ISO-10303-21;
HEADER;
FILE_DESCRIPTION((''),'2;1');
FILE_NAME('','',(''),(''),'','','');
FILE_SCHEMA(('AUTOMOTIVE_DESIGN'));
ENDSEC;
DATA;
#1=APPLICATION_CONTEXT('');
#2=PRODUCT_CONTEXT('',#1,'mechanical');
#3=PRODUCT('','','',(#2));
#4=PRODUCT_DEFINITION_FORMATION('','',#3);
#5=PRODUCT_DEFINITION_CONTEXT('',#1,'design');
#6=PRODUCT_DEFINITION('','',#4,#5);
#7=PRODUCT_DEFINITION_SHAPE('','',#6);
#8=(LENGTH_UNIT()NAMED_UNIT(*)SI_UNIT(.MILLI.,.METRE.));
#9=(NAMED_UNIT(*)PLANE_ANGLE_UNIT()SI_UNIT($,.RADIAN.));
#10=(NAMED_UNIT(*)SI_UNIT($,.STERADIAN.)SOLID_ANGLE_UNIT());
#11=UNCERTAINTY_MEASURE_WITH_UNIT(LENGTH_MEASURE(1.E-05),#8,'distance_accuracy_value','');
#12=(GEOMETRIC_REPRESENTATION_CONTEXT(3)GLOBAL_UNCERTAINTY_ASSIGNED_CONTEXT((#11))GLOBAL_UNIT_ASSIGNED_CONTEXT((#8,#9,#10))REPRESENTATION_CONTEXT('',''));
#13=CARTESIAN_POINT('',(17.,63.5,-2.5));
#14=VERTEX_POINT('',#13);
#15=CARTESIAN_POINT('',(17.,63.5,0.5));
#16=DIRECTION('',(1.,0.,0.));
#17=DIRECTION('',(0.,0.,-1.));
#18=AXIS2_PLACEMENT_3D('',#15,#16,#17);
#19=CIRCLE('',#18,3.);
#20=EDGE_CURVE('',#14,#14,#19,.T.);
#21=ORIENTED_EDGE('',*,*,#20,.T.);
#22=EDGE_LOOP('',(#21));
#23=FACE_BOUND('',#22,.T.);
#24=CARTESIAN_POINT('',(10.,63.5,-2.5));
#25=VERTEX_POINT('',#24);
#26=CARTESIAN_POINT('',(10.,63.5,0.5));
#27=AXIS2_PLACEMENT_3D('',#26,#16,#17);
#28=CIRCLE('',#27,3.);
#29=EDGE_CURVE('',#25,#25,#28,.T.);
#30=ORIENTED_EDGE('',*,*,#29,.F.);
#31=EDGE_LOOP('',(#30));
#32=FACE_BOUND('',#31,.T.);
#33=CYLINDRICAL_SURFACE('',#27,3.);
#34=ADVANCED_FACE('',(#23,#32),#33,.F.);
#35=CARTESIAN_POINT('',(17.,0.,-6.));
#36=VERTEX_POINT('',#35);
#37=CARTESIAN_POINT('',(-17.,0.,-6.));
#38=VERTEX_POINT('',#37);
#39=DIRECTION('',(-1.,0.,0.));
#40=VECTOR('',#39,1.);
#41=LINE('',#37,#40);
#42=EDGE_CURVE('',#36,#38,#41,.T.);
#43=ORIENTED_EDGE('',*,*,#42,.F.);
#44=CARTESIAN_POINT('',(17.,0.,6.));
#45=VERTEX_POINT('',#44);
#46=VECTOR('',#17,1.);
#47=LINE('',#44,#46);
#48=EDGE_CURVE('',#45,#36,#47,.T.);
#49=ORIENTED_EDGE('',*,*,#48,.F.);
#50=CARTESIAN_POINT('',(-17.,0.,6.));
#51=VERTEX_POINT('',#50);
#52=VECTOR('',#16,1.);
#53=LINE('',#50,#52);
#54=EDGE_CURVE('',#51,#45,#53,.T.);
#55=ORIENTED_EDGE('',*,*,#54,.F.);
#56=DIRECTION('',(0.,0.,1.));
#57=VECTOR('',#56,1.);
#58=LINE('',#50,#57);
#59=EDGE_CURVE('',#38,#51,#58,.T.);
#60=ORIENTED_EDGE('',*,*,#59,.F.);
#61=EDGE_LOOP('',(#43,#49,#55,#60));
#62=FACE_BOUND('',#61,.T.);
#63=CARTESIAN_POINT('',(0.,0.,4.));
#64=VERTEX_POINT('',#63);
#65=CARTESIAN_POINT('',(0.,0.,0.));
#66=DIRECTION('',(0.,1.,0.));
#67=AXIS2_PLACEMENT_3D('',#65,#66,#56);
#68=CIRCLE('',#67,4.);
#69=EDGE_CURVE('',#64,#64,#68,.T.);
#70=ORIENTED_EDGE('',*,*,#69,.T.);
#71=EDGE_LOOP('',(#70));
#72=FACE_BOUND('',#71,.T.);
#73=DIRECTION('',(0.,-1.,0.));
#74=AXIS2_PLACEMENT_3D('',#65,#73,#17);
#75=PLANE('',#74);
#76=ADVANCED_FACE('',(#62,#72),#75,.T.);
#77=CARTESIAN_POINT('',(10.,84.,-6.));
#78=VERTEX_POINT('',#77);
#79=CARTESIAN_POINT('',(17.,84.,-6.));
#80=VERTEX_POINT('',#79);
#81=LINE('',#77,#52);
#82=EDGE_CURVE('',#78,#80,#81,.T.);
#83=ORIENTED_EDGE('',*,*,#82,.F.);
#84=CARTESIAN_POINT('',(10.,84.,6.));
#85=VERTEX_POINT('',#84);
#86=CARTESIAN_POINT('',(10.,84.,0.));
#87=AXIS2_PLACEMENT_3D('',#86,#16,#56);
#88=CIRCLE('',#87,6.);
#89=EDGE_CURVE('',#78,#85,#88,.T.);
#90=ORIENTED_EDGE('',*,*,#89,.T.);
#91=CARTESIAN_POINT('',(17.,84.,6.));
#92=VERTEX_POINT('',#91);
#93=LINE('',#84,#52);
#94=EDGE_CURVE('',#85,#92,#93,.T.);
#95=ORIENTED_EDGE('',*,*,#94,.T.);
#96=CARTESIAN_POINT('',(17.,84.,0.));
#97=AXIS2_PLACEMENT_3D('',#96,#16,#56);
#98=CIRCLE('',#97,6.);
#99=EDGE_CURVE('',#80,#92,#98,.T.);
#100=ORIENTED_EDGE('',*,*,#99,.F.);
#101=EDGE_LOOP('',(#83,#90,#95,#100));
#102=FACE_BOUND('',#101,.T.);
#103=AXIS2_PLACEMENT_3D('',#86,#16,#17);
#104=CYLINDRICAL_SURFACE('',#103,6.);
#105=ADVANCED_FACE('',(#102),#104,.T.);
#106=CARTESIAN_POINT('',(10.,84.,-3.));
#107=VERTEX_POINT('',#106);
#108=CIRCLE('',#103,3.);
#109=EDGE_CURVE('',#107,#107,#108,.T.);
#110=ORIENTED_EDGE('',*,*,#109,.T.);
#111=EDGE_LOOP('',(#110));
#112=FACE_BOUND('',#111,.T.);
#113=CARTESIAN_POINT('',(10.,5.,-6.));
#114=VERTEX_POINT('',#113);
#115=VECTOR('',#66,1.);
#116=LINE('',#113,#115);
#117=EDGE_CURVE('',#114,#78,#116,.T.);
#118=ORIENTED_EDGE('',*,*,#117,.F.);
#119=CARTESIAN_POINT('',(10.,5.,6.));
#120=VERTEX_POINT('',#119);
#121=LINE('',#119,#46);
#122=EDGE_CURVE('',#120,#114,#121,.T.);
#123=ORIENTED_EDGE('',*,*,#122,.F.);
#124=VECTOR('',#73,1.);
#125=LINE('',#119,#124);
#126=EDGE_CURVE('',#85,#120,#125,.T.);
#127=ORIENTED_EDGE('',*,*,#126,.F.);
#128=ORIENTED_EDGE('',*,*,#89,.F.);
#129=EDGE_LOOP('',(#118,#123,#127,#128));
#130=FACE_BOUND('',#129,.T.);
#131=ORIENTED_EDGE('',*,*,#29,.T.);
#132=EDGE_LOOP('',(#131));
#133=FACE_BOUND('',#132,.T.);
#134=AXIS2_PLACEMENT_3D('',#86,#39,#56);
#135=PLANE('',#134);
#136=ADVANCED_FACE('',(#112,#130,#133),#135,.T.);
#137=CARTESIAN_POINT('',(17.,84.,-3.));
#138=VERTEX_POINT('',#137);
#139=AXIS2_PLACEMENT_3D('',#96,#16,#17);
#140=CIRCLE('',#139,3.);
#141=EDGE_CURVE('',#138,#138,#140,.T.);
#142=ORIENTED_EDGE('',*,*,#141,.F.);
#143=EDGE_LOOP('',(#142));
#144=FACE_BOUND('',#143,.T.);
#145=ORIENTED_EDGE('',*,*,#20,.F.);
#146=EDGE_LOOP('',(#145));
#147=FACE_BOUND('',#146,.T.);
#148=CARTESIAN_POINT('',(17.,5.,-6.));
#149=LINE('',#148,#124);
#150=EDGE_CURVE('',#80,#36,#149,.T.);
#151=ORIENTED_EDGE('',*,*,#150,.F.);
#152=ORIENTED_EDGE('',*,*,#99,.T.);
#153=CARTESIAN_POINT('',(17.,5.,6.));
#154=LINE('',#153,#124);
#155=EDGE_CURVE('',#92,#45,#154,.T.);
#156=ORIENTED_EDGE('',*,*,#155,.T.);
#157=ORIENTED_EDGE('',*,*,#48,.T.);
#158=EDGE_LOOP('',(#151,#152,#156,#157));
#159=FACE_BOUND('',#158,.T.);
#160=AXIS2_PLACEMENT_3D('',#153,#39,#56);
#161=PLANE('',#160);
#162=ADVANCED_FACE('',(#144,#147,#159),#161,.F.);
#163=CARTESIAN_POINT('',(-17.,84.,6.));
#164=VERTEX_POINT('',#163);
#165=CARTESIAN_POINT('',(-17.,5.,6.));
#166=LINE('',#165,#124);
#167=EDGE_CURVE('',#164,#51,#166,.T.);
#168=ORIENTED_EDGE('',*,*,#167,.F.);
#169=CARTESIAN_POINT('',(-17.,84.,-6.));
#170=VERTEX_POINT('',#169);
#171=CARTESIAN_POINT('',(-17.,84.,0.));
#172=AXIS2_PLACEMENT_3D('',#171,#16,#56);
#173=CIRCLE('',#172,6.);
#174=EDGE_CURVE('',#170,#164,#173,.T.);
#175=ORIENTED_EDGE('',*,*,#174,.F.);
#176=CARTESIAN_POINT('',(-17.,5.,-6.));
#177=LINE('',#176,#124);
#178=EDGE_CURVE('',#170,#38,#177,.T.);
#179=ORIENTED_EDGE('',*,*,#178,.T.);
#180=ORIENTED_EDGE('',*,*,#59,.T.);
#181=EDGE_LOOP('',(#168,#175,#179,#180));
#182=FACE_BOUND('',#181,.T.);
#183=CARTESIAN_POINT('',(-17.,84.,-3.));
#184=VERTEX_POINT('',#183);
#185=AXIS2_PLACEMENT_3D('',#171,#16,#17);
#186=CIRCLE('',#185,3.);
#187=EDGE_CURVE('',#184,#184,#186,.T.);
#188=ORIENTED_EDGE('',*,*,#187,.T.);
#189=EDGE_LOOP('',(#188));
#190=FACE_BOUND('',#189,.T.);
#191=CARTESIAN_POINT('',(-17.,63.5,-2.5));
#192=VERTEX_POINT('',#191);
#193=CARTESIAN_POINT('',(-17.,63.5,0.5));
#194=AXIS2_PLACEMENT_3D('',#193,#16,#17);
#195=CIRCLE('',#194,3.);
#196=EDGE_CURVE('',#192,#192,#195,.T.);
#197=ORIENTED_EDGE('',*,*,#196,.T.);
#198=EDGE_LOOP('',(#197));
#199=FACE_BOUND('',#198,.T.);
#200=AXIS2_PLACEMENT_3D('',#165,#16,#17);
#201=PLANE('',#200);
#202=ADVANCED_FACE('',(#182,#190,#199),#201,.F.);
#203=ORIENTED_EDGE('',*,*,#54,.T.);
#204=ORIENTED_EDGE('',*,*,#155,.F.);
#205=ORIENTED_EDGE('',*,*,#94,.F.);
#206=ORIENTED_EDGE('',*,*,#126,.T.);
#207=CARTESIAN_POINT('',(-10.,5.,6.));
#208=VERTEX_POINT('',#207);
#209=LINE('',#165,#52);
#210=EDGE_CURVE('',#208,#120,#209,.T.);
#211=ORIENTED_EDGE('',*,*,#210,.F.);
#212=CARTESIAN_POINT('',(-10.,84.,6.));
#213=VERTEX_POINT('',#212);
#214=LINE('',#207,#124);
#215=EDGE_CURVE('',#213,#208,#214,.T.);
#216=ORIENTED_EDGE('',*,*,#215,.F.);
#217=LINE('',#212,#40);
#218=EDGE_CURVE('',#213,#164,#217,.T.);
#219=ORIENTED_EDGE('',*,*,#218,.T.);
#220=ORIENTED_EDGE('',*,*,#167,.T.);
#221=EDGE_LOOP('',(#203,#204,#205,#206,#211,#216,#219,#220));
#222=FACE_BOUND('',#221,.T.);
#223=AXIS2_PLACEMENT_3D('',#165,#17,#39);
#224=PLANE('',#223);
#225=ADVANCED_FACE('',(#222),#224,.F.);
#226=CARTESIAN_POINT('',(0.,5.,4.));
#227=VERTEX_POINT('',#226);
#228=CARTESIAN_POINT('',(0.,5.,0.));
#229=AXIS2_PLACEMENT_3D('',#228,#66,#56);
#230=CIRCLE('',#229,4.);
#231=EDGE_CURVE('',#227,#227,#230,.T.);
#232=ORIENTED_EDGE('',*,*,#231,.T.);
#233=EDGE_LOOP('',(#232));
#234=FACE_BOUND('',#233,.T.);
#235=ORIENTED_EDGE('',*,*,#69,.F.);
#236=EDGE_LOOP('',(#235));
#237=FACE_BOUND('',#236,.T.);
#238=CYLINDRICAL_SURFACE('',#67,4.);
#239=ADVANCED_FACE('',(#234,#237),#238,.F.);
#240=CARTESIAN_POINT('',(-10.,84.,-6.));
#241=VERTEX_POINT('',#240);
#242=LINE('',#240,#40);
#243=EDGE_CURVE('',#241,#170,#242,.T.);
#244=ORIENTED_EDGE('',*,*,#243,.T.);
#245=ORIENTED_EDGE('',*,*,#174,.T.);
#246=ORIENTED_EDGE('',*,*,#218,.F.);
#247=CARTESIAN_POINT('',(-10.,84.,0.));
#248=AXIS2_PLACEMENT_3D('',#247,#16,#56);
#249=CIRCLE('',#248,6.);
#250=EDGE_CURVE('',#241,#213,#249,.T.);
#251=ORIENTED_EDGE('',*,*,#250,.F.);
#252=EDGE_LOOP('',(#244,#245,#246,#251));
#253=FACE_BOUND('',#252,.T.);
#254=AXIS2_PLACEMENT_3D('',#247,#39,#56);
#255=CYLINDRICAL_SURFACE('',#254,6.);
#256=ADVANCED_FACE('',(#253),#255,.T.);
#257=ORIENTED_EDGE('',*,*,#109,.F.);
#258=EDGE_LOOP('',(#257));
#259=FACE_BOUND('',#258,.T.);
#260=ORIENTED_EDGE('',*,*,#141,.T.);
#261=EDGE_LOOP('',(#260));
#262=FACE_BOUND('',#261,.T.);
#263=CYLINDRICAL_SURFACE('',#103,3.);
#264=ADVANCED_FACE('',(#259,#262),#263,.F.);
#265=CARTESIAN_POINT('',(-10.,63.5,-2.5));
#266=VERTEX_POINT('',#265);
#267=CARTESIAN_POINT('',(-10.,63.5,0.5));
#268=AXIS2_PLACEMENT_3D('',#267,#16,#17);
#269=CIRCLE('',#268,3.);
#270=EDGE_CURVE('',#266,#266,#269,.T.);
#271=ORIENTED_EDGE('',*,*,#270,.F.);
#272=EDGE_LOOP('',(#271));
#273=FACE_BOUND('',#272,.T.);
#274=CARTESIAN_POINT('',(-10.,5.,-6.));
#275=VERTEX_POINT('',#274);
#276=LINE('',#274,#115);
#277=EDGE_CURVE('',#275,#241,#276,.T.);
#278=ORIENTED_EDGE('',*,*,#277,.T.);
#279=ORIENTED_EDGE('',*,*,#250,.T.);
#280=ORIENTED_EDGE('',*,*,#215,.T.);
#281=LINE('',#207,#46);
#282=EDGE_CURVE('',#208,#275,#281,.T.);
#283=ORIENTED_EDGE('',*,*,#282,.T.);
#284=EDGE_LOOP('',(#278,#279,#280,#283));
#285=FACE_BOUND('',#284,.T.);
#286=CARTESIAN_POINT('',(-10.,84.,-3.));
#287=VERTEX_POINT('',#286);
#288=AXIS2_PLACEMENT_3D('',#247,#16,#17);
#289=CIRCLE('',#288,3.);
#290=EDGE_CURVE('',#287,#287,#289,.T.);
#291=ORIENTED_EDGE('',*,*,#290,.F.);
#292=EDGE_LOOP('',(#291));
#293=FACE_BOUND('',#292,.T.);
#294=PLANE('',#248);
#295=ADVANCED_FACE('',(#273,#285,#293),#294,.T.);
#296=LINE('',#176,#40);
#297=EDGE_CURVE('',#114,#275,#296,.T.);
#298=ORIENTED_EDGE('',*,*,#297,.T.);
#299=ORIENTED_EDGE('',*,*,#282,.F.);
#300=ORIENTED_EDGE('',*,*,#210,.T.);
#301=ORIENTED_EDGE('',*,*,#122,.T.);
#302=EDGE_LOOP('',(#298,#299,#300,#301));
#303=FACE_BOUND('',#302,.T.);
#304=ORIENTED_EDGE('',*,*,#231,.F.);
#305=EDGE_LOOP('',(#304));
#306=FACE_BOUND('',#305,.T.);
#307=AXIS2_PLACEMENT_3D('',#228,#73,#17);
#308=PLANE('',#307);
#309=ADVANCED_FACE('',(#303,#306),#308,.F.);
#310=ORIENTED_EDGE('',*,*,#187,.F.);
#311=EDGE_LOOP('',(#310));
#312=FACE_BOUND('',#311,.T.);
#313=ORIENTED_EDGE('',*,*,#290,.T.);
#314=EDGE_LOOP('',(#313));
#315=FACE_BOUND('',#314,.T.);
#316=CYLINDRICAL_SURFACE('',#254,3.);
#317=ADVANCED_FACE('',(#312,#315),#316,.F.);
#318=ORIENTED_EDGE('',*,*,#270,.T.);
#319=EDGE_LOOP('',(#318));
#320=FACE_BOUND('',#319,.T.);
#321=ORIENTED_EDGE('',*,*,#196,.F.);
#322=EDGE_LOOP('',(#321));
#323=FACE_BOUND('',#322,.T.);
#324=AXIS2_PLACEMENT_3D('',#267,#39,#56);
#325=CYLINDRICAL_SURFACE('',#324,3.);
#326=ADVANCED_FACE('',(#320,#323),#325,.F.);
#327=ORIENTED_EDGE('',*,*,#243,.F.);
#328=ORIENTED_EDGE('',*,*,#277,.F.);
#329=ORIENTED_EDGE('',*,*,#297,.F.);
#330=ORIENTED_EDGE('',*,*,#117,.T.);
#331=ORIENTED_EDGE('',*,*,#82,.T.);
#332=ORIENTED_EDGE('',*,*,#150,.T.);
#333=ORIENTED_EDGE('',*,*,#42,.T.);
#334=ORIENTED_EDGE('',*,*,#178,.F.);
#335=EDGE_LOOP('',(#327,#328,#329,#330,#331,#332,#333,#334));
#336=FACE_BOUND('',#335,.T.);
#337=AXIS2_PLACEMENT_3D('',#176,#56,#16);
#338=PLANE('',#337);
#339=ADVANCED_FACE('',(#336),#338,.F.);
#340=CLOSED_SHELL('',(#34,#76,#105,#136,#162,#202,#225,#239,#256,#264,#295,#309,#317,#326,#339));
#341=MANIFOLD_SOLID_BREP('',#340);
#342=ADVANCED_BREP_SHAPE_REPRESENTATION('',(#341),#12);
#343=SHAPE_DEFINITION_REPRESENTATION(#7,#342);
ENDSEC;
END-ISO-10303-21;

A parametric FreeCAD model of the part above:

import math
import FreeCAD as App
import Part
import Sketcher

V = App.Vector
Q = App.Units.Quantity


def add_polygon(sketch, points):
    """Adds a closed chain of lines whose ends are joined by coincident constraints."""
    first, n = sketch.GeometryCount, len(points)
    for a, b in zip(points, points[1:] + points[:1]):
        sketch.addGeometry(Part.LineSegment(App.Vector(*a, 0), App.Vector(*b, 0)), False)
    for i in range(n):
        sketch.addConstraint(Sketcher.Constraint("Coincident", first + i, 2, first + (i + 1) % n, 1))

doc = App.newDocument("Part")
body = doc.addObject("PartDesign::Body", "Body")

sketch1 = body.newObject("Sketcher::SketchObject", "Sketch")
sketch1.AttachmentSupport = (doc.getObject("XZ_Plane"), [""])
sketch1.MapMode = "FlatFace"
add_polygon(sketch1, [(-17, -6), (-17, 6), (17, 6), (17, -6)])
sketch1.addConstraint([
    Sketcher.Constraint("Vertical", 0),
    Sketcher.Constraint("Horizontal", 1),
    Sketcher.Constraint("Vertical", 2),
    Sketcher.Constraint("Horizontal", 3),
    Sketcher.Constraint("Symmetric", 0, 2, 2, 2, -1, 1),
    Sketcher.Constraint("DistanceX", 1, 1, 1, 2, Q("34 mm")),
    Sketcher.Constraint("DistanceY", 0, 1, 0, 2, Q("12 mm")),
])
pad1 = body.newObject("PartDesign::Pad", "Pad")
pad1.Profile = sketch1
pad1.Length = 5
pad1.Reversed = True

sketch2 = body.newObject("Sketcher::SketchObject", "Sketch001")
sketch2.AttachmentSupport = (doc.getObject("YZ_Plane"), [""])
sketch2.MapMode = "FlatFace"
sketch2.AttachmentOffset = App.Placement(V(0, 0, 17), App.Rotation())
sketch2.addGeometry([
    Part.LineSegment(V(5, 6, 0), V(5, -6, 0)),
    Part.LineSegment(V(5, -6, 0), V(84, -6, 0)),
    Part.ArcOfCircle(Part.Circle(V(84, 0, 0), V(0, 0, 1), 6), math.radians(-90), math.radians(90)),
    Part.LineSegment(V(84, 6, 0), V(5, 6, 0)),
    Part.Circle(V(63.5, 0.5, 0), V(0, 0, 1), 3),
    Part.Circle(V(84, 0, 0), V(0, 0, 1), 3),
], False)
sketch2.addConstraint([
    Sketcher.Constraint("Coincident", 0, 2, 1, 1),
    Sketcher.Constraint("Tangent", 1, 2, 2, 1),
    Sketcher.Constraint("Tangent", 2, 2, 3, 1),
    Sketcher.Constraint("Coincident", 3, 2, 0, 1),
    Sketcher.Constraint("Vertical", 0),
    Sketcher.Constraint("Horizontal", 1),
    Sketcher.Constraint("Horizontal", 3),
    Sketcher.Constraint("Coincident", 5, 3, 2, 3),
    Sketcher.Constraint("Equal", 4, 5),
    Sketcher.Constraint("PointOnObject", 2, 3, -1),
    Sketcher.Constraint("Diameter", 4, Q("6 mm")),
    Sketcher.Constraint("Radius", 2, Q("6 mm")),
    Sketcher.Constraint("DistanceX", 1, 1, 1, 2, Q("79 mm")),
    Sketcher.Constraint("DistanceX", -1, 1, 2, 3, Q("84 mm")),
    Sketcher.Constraint("DistanceX", -1, 1, 4, 3, Q("63.5 mm")),
    Sketcher.Constraint("DistanceY", -1, 1, 4, 3, Q("0.5 mm")),
])
pad2 = body.newObject("PartDesign::Pad", "Pad001")
pad2.Profile = sketch2
pad2.Length = 7
pad2.Reversed = True

sketch3 = body.newObject("Sketcher::SketchObject", "Sketch002")
sketch3.AttachmentSupport = (doc.getObject("XZ_Plane"), [""])
sketch3.MapMode = "FlatFace"
sketch3.AttachmentOffset = App.Placement(V(0, 0, -5), App.Rotation())
sketch3.addGeometry(Part.Circle(V(0, 0, 0), V(0, 0, 1), 1.5), False)
sketch3.addConstraint([
    Sketcher.Constraint("Coincident", 0, 3, -1, 1),
    Sketcher.Constraint("Diameter", 0, Q("3 mm")),
])
pocket1 = body.newObject("PartDesign::Pocket", "Pocket")
pocket1.Profile = sketch3
pocket1.Length = 3
pocket1.Reversed = True

sketch4 = body.newObject("Sketcher::SketchObject", "Sketch003")
sketch4.AttachmentSupport = (doc.getObject("XZ_Plane"), [""])
sketch4.MapMode = "FlatFace"
sketch4.AttachmentOffset = App.Placement(V(0, 0, -5), App.Rotation())
sketch4.addGeometry(Part.Circle(V(0, 0, 0), V(0, 0, 1), 4), False)
sketch4.addConstraint([
    Sketcher.Constraint("Coincident", 0, 3, -1, 1),
    Sketcher.Constraint("Diameter", 0, Q("8 mm")),
])
pocket2 = body.newObject("PartDesign::Pocket", "Pocket001")
pocket2.Profile = sketch4
pocket2.Type = "ThroughAll"
pocket2.Reversed = True
doc.recompute()

mirrored = body.newObject("PartDesign::Mirrored", "Mirrored")
mirrored.Originals = [pad2]
mirrored.MirrorPlane = (doc.getObject("YZ_Plane"), [""])
body.Tip = mirrored

doc.recompute()
